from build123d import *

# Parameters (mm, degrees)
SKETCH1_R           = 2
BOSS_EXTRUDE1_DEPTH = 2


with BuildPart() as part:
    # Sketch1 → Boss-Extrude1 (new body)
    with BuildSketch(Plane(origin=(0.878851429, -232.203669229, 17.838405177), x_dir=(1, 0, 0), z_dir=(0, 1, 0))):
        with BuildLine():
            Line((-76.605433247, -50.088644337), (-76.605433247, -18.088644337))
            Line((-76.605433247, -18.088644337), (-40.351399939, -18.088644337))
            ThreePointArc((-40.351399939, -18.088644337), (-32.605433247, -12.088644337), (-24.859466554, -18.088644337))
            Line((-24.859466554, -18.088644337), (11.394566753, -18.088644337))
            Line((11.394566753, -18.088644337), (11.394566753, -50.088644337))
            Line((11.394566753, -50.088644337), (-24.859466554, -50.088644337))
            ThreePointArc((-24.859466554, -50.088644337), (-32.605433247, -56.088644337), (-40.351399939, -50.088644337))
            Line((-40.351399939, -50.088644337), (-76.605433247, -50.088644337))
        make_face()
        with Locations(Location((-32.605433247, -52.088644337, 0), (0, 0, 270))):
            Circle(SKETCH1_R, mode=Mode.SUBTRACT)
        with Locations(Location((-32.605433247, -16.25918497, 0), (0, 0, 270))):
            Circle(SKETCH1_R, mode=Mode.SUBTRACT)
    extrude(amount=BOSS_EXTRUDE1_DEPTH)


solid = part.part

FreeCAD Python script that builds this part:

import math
import FreeCAD as App
import Part
import Sketcher

V = App.Vector
Q = App.Units.Quantity

doc = App.newDocument("Part")
body = doc.addObject("PartDesign::Body", "Body")

# Sketch on XZ plane
sketch1 = doc.addObject("Sketcher::SketchObject", "Sketch")
body.addObject(sketch1)
sketch1.AttachmentSupport = (doc.XZ_Plane, [""])
sketch1.MapMode = "FlatFace"
sketch1.AttachmentOffset = App.Placement(V(0, 0, 232.203669), App.Rotation())
sketch1.addGeometry([
    Part.LineSegment(V(-75.726582, 35.92705, 0), V(-75.726582, 67.92705, 0)),  # 0
    Part.LineSegment(V(-75.726582, 67.92705, 0), V(-39.472549, 67.92705, 0)),  # 1
    Part.ArcOfCircle(Part.Circle(V(-31.726582, 65.92705, 0), V(0, 0, 1), 8), math.radians(14.477512), math.radians(165.522488)),  # 2
    Part.LineSegment(V(-23.980615, 67.92705, 0), V(12.273418, 67.92705, 0)),  # 3
    Part.LineSegment(V(12.273418, 67.92705, 0), V(12.273418, 35.92705, 0)),  # 4
    Part.LineSegment(V(12.273418, 35.92705, 0), V(-23.980615, 35.92705, 0)),  # 5
    Part.ArcOfCircle(Part.Circle(V(-31.726582, 37.92705, 0), V(0, 0, 1), 8), math.radians(-165.522488), math.radians(-14.477512)),  # 6
    Part.LineSegment(V(-39.472549, 35.92705, 0), V(-75.726582, 35.92705, 0)),  # 7
    Part.Circle(V(-31.726582, 69.92705, 0), V(0, 0, 1), 2),  # 8
    Part.Circle(V(-31.726582, 34.09759, 0), V(0, 0, 1), 2),  # 9
], False)
sketch1.addConstraint([
    Sketcher.Constraint("Coincident", 0, 2, 1, 1),
    Sketcher.Constraint("Coincident", 1, 2, 2, 2),
    Sketcher.Constraint("Coincident", 2, 1, 3, 1),
    Sketcher.Constraint("Coincident", 3, 2, 4, 1),
    Sketcher.Constraint("Coincident", 4, 2, 5, 1),
    Sketcher.Constraint("Coincident", 5, 2, 6, 2),
    Sketcher.Constraint("Coincident", 6, 1, 7, 1),
    Sketcher.Constraint("Coincident", 7, 2, 0, 1),
    Sketcher.Constraint("Vertical", 0),
    Sketcher.Constraint("Horizontal", 1),
    Sketcher.Constraint("Horizontal", 3),
    Sketcher.Constraint("Vertical", 4),
    Sketcher.Constraint("Horizontal", 5),
    Sketcher.Constraint("Horizontal", 7),
    Sketcher.Constraint("Equal", 2, 6),
    Sketcher.Constraint("Equal", 8, 9),
    Sketcher.Constraint("Horizontal", 1, 2, 2, 1),
    Sketcher.Constraint("Horizontal", 5, 2, 6, 1),
    Sketcher.Constraint("Vertical", 2, 3, 6, 3),
    Sketcher.Constraint("Vertical", 6, 3, 8, 3),
    Sketcher.Constraint("Vertical", 8, 3, 9, 3),
    Sketcher.Constraint("Vertical", 2, 1, 5, 2),
    Sketcher.Constraint("Equal", 1, 3),
    Sketcher.Constraint("Diameter", 8, Q("4 mm")),
    Sketcher.Constraint("Radius", 2, Q("8 mm")),
    Sketcher.Constraint("DistanceY", 0, 1, 0, 2, Q("32 mm")),
    Sketcher.Constraint("DistanceY", 6, 3, 2, 3, Q("28 mm")),
    Sketcher.Constraint("DistanceY", 2, 3, 8, 3, Q("4 mm")),
    Sketcher.Constraint("DistanceX", 0, 2, 8, 3, Q("44 mm")),
    Sketcher.Constraint("DistanceX", 2, 3, -1, 1, Q("31.726582 mm")),
    Sketcher.Constraint("DistanceY", -1, 1, 2, 3, Q("65.92705 mm")),
    Sketcher.Constraint("DistanceY", -1, 1, 9, 3, Q("34.09759 mm")),
])
pad1 = doc.addObject("PartDesign::Pad", "Pad")
body.addObject(pad1)
pad1.Profile = sketch1
pad1.Length = 2
pad1.Reversed = True

doc.recompute()
